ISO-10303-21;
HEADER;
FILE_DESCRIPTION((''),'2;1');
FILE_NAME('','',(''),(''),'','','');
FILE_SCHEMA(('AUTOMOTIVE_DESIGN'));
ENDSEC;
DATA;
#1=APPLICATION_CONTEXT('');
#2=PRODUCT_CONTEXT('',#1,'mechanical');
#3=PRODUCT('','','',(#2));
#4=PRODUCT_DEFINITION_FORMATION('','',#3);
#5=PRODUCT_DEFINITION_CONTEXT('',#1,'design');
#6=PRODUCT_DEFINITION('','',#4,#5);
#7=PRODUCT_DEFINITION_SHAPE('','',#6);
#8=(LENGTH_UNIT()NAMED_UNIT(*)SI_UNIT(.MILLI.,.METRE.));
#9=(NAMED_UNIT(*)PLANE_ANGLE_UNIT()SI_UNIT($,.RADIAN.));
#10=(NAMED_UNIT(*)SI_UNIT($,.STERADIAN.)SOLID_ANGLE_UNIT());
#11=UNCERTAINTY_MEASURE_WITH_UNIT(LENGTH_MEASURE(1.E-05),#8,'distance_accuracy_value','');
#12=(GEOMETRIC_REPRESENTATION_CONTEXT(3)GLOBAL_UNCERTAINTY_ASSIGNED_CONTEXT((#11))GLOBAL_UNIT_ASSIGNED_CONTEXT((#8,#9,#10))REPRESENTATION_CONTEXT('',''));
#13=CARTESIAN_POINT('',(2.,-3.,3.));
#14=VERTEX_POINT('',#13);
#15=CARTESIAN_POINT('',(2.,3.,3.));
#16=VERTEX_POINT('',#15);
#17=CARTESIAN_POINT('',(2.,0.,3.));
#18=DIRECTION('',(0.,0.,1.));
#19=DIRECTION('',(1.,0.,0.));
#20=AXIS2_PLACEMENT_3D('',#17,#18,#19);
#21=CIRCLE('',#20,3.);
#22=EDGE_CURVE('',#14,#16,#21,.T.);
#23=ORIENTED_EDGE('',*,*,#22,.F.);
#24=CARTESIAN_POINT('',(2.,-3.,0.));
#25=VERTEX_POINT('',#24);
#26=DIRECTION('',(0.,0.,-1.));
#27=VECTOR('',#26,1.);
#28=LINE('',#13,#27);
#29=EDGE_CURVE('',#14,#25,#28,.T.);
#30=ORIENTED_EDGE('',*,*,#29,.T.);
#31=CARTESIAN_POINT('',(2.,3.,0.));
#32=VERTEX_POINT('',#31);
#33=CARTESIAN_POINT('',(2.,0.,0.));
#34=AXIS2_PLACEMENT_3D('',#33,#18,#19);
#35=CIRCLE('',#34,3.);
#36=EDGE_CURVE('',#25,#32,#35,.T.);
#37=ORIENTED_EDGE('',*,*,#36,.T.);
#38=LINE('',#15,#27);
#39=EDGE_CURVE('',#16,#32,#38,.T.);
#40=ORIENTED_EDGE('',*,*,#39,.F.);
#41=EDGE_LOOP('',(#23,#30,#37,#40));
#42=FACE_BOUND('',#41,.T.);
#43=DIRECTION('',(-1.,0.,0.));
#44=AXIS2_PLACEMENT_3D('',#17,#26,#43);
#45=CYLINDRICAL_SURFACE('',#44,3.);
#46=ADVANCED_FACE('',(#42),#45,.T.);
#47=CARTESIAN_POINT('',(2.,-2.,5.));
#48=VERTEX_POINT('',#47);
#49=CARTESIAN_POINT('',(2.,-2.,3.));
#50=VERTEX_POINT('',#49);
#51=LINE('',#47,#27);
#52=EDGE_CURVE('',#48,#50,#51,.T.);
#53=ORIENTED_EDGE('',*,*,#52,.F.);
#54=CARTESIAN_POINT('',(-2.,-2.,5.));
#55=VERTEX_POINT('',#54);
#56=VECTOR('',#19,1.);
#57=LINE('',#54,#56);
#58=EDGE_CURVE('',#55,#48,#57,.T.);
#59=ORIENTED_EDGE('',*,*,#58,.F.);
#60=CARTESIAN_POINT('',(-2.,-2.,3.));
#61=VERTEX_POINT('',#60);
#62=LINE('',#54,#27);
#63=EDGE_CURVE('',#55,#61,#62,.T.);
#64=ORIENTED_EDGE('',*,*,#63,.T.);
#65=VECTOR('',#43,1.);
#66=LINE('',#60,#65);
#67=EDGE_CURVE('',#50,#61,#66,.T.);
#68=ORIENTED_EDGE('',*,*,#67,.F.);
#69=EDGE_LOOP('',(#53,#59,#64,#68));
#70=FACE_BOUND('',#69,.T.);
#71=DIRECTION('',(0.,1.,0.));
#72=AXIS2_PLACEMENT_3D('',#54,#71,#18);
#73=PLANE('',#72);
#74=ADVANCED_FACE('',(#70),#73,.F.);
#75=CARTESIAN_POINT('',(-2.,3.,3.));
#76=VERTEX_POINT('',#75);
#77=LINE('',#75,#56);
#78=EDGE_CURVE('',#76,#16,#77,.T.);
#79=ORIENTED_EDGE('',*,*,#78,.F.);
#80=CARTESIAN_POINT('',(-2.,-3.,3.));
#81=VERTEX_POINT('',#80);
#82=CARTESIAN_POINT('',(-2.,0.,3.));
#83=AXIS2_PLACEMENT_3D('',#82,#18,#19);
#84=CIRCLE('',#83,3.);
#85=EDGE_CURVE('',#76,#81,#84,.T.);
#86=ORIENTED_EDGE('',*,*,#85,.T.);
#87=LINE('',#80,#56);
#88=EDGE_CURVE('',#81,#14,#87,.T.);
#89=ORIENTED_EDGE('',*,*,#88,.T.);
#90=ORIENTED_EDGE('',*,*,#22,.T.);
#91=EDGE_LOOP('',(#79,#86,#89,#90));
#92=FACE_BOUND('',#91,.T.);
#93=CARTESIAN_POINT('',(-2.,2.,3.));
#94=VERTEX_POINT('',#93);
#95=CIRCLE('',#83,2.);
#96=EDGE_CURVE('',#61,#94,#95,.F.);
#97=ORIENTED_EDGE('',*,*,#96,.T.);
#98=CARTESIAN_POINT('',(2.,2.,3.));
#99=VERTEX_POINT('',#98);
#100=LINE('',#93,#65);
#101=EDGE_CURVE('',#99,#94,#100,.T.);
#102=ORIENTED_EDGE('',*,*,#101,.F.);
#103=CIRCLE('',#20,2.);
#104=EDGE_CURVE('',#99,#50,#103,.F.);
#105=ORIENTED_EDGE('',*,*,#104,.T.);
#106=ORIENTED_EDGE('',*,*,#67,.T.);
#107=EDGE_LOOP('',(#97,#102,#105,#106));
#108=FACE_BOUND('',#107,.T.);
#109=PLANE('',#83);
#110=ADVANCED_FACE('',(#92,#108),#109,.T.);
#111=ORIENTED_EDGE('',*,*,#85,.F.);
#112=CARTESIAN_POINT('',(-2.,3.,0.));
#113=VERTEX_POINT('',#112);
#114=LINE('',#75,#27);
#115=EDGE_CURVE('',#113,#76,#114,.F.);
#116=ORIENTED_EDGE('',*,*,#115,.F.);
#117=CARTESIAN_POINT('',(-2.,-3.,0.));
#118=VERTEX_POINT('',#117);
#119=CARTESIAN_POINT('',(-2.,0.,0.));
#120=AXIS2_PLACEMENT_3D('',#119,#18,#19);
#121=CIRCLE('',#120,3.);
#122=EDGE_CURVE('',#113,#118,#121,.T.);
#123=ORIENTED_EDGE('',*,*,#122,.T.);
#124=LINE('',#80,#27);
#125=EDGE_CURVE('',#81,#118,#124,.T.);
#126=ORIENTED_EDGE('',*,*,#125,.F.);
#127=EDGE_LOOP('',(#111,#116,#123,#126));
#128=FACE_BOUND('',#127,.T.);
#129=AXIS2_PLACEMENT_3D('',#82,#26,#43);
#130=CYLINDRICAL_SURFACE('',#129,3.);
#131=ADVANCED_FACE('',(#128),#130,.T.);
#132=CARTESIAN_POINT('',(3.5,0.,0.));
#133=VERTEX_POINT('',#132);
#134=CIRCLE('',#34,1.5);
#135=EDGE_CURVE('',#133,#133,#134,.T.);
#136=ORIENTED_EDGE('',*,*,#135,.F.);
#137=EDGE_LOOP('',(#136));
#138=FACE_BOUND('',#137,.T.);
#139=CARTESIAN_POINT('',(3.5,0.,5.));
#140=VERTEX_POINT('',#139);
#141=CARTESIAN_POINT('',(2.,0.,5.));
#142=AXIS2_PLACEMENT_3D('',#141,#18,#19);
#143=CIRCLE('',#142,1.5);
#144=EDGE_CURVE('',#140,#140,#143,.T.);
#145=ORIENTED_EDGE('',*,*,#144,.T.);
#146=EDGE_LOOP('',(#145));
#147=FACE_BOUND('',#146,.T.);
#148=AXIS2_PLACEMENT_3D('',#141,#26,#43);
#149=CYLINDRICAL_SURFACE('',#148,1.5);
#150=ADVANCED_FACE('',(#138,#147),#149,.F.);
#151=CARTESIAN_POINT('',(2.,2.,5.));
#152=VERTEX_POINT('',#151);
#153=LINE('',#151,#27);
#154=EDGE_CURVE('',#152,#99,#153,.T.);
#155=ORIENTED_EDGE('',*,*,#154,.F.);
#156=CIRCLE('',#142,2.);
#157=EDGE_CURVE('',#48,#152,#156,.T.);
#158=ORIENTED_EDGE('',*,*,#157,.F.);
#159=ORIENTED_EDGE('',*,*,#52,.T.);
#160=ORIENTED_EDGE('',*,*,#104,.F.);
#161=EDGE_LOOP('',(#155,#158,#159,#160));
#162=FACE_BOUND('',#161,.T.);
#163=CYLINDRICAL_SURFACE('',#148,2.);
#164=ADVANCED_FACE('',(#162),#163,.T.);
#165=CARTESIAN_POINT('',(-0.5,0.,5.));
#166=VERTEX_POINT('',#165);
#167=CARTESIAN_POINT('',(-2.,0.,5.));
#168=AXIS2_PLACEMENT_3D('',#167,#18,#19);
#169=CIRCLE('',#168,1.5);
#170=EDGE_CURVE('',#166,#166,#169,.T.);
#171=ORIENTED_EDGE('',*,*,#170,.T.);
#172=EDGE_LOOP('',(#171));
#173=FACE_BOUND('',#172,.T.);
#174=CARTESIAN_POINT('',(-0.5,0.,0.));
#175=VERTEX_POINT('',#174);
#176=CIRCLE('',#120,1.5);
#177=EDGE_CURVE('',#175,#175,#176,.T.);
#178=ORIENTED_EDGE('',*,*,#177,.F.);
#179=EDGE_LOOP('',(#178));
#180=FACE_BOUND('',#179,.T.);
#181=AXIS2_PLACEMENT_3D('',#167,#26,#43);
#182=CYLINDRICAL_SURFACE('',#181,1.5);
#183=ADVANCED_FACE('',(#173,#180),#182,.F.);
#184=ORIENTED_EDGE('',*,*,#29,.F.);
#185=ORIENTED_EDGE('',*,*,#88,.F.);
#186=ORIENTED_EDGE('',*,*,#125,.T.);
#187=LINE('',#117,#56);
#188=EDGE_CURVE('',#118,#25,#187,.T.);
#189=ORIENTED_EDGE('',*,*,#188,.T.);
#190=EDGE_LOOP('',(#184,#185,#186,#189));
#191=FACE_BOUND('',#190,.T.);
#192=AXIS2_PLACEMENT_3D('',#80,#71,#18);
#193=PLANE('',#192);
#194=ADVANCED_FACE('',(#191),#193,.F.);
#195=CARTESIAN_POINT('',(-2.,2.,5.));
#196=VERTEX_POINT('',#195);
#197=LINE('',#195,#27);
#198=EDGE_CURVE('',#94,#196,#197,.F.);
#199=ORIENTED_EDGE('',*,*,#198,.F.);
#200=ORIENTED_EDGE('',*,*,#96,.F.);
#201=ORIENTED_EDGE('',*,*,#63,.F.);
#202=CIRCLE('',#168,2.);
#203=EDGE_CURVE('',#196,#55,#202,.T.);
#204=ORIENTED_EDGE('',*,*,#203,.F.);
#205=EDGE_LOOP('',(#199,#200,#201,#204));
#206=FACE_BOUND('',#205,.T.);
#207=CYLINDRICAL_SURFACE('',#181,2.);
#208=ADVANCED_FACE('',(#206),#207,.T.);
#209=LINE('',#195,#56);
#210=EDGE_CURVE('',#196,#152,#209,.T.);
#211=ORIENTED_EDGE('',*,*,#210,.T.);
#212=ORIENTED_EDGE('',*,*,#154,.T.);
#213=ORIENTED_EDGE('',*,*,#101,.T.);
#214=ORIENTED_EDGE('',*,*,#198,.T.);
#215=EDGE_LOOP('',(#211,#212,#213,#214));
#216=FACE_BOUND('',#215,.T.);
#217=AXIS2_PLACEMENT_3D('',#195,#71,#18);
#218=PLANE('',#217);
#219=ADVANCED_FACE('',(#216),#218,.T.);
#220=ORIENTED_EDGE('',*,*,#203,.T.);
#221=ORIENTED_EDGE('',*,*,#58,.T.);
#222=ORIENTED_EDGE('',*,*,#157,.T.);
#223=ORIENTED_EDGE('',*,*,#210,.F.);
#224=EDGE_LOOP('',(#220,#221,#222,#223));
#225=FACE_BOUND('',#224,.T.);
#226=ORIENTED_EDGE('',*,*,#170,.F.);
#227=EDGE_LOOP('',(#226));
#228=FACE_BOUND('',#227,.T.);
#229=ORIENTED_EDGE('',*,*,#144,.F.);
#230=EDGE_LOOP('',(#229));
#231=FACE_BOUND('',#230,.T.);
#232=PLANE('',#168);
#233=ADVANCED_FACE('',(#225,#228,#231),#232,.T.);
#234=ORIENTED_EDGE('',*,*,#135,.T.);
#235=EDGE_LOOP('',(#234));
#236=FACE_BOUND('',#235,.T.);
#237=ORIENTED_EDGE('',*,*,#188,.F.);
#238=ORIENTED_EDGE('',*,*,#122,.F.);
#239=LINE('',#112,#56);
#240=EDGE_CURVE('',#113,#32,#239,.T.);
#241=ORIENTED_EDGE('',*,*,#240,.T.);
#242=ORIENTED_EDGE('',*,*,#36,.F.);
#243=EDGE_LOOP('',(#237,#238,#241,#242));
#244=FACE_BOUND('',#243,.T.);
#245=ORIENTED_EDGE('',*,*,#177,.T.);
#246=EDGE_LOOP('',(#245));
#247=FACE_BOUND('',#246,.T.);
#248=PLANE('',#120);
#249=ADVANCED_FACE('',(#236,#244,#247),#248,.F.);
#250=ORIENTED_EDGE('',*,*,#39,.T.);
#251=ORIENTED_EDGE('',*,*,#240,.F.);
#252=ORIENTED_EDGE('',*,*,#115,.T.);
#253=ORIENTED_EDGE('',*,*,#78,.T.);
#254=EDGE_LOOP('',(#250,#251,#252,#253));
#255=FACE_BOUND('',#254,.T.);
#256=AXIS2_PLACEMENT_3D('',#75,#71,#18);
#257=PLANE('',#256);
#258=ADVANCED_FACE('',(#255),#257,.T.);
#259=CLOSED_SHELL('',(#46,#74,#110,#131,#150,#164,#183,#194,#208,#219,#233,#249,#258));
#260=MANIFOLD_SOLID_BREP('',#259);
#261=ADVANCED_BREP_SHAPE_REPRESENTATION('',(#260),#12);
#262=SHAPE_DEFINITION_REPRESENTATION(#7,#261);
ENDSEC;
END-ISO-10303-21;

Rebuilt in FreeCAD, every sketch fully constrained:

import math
import FreeCAD as App
import Part
import Sketcher
Q = App.Units.Quantity

doc = App.newDocument("Part")
body = doc.addObject("PartDesign::Body", "Body")

# Sketch on XY plane
sketch1 = body.newObject("Sketcher::SketchObject", "Sketch")
sketch1.AttachmentSupport = (doc.getObject("XY_Plane"), [""])
sketch1.MapMode = "FlatFace"
sketch1.addGeometry([
    Part.LineSegment(App.Vector(-2, -3, 0), App.Vector(2, -3, 0)),
    Part.ArcOfCircle(Part.Circle(App.Vector(2, 0, 0), App.Vector(0, 0, 1), 3), math.radians(-90), math.radians(90)),
    Part.LineSegment(App.Vector(2, 3, 0), App.Vector(-2, 3, 0)),
    Part.ArcOfCircle(Part.Circle(App.Vector(-2, 0, 0), App.Vector(0, 0, 1), 3), math.radians(90), math.radians(270)),
], False)
sketch1.addConstraint([
    Sketcher.Constraint("Tangent", 0, 2, 1, 1),
    Sketcher.Constraint("Tangent", 1, 2, 2, 1),
    Sketcher.Constraint("Tangent", 2, 2, 3, 1),
    Sketcher.Constraint("Tangent", 3, 2, 0, 1),
    Sketcher.Constraint("Horizontal", 0),
    Sketcher.Constraint("Horizontal", 2),
    Sketcher.Constraint("Symmetric", 1, 3, 3, 3, -1, 1),
    Sketcher.Constraint("Radius", 1, Q("3 mm")),
    Sketcher.Constraint("DistanceX", 0, 1, 0, 2, Q("4 mm")),
])
pad1 = body.newObject("PartDesign::Pad", "Pad")
pad1.Profile = sketch1
pad1.Length = 3

# Sketch on XY plane
sketch2 = body.newObject("Sketcher::SketchObject", "Sketch001")
sketch2.AttachmentSupport = (doc.getObject("XY_Plane"), [""])
sketch2.MapMode = "FlatFace"
sketch2.addGeometry([
    Part.LineSegment(App.Vector(-2, -2, 0), App.Vector(2, -2, 0)),
    Part.ArcOfCircle(Part.Circle(App.Vector(2, 0, 0), App.Vector(0, 0, 1), 2), math.radians(-90), math.radians(90)),
    Part.LineSegment(App.Vector(2, 2, 0), App.Vector(-2, 2, 0)),
    Part.ArcOfCircle(Part.Circle(App.Vector(-2, 0, 0), App.Vector(0, 0, 1), 2), math.radians(90), math.radians(270)),
], False)
sketch2.addConstraint([
    Sketcher.Constraint("Tangent", 0, 2, 1, 1),
    Sketcher.Constraint("Tangent", 1, 2, 2, 1),
    Sketcher.Constraint("Tangent", 2, 2, 3, 1),
    Sketcher.Constraint("Tangent", 3, 2, 0, 1),
    Sketcher.Constraint("Horizontal", 0),
    Sketcher.Constraint("Horizontal", 2),
    Sketcher.Constraint("Symmetric", 1, 3, 3, 3, -1, 1),
    Sketcher.Constraint("Radius", 1, Q("2 mm")),
    Sketcher.Constraint("DistanceX", 0, 1, 0, 2, Q("4 mm")),
])
pad2 = body.newObject("PartDesign::Pad", "Pad001")
pad2.Profile = sketch2
pad2.Length = 5

# Sketch on XY plane
sketch3 = body.newObject("Sketcher::SketchObject", "Sketch002")
sketch3.AttachmentSupport = (doc.getObject("XY_Plane"), [""])
sketch3.MapMode = "FlatFace"
sketch3.addGeometry([
    Part.Circle(App.Vector(-2, 0, 0), App.Vector(0, 0, 1), 1.5),
    Part.Circle(App.Vector(2, 0, 0), App.Vector(0, 0, 1), 1.5),
], False)
sketch3.addConstraint([
    Sketcher.Constraint("Equal", 0, 1),
    Sketcher.Constraint("Symmetric", 0, 3, 1, 3, -1, 1),
    Sketcher.Constraint("PointOnObject", 0, 3, -1),
    Sketcher.Constraint("Diameter", 0, Q("3 mm")),
    Sketcher.Constraint("DistanceX", 0, 3, -1, 1, Q("2 mm")),
])
pocket1 = body.newObject("PartDesign::Pocket", "Pocket")
pocket1.Profile = sketch3
pocket1.Type = "ThroughAll"
pocket1.Reversed = True

doc.recompute()
